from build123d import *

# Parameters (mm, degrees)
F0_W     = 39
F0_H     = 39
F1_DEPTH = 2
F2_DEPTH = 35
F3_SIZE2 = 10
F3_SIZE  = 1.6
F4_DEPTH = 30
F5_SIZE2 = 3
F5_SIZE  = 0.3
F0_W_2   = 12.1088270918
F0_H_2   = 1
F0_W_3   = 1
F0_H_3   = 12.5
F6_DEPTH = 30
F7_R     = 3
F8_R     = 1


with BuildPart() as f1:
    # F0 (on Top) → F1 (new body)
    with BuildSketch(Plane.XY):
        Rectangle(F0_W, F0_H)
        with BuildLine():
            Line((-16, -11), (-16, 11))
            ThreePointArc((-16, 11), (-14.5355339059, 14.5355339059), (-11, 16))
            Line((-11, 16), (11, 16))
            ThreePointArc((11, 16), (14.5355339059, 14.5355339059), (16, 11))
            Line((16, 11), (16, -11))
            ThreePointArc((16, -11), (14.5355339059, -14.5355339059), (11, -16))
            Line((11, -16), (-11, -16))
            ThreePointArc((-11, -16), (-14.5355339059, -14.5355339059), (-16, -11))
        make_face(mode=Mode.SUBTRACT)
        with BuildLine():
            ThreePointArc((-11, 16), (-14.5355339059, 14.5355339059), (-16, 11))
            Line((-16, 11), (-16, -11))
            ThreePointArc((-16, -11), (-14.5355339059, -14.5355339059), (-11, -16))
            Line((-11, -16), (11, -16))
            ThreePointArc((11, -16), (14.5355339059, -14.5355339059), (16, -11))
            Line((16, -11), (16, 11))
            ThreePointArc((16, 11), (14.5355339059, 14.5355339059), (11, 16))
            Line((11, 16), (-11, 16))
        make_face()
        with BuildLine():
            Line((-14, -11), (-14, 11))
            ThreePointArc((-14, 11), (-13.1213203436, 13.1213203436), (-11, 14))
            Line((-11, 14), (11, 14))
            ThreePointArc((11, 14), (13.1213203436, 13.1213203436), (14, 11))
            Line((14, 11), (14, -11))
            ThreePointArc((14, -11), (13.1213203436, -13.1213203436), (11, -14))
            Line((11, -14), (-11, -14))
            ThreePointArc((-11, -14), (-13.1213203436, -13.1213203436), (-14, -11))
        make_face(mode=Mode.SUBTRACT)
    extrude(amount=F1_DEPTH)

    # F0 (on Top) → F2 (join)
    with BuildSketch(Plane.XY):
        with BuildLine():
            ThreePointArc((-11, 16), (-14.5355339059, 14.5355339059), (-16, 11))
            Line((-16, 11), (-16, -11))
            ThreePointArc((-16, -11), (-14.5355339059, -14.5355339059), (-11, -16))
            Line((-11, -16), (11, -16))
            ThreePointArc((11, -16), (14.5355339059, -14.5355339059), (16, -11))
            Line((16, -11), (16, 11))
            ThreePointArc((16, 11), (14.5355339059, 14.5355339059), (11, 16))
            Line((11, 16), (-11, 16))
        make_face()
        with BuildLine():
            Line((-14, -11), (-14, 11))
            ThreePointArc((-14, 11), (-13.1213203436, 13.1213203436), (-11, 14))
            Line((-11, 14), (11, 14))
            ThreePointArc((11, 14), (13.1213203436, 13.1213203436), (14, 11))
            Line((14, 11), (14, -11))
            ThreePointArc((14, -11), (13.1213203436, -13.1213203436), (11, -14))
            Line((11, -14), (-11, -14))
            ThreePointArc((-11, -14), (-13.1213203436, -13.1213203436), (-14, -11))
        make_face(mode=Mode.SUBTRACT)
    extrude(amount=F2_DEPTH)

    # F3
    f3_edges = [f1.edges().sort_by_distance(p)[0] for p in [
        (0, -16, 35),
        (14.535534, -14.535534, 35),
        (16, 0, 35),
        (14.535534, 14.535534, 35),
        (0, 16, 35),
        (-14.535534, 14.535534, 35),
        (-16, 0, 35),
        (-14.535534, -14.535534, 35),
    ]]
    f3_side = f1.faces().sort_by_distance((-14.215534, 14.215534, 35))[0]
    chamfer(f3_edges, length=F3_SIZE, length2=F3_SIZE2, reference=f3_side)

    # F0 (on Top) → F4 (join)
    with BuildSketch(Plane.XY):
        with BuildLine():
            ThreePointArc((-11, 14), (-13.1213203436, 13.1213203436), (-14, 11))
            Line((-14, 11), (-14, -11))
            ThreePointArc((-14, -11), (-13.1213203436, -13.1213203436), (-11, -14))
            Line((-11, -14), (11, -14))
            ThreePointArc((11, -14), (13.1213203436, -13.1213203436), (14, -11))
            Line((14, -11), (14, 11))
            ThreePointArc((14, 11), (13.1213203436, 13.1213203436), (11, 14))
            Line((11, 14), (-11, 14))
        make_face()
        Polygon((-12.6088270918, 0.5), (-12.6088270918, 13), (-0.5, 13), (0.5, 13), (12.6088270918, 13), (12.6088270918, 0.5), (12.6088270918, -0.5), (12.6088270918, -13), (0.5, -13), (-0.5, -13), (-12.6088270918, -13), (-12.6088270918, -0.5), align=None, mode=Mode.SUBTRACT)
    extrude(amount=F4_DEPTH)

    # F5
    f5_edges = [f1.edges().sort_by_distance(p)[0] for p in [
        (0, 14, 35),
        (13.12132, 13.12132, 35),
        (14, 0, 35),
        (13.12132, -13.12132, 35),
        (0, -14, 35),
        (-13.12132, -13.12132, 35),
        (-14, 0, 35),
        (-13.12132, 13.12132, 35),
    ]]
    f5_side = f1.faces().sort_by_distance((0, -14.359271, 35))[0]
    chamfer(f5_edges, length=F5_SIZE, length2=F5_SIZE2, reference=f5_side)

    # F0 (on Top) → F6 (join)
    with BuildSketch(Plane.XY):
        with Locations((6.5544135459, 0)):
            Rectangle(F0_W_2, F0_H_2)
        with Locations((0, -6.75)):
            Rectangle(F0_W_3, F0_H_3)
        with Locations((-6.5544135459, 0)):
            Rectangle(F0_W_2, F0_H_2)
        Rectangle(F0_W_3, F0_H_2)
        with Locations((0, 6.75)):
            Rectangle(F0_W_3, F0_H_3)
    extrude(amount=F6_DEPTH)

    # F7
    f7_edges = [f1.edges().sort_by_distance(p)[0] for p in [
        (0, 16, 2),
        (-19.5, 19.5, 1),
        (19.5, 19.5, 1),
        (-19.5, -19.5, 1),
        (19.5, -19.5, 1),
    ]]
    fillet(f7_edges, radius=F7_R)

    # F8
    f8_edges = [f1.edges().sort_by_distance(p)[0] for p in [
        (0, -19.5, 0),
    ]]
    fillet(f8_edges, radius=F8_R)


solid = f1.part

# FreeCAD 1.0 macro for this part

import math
import FreeCAD as App
import Part
import Sketcher
from FreeCAD import Vector


def edges_at(feature, points):
    """Names of the edges that pass closest to the given points."""
    edges = feature.Shape.Edges
    near = lambda p: min(range(len(edges)), key=lambda i: edges[i].distToShape(Part.Vertex(*p))[0])
    return sorted({f"Edge{near(p) + 1}" for p in points})

doc = App.newDocument("Part")
params = doc.addObject("Spreadsheet::Sheet", "Params")
for row, (alias, value) in enumerate([
    ("sketch1_radius", "3 mm"),
    ("sketch1_width", "39 mm"),
    ("sketch1_width2", "22 mm"),
    ("pad1_length", "2 mm"),
    ("sketch2_radius", "5 mm"),
    ("sketch2_radius2", "3 mm"),
    ("sketch2_width", "22 mm"),
    ("pad2_length", "35 mm"),
    ("chamfer_size", "1.6 mm"),
    ("chamfer_size2", "10 mm"),
    ("sketch3_radius", "3 mm"),
    ("sketch3_width", "22 mm"),
    ("sketch3_height", "26 mm"),
    ("pad3_length", "30 mm"),
    ("chamfer2_size", "0.3 mm"),
    ("chamfer2_size2", "3 mm"),
    ("sketch4_width", "1 mm"),
    ("sketch4_height", "12.5 mm"),
    ("pad4_length", "30 mm"),
    ("fillet_radius", "3 mm"),
    ("fillet2_radius", "1 mm"),
], start=1):
    params.set(f"A{row}", alias)
    params.set(f"B{row}", "=" + value)
    params.setAlias(f"B{row}", alias)

body = doc.addObject("PartDesign::Body", "Body")

sketch1 = doc.addObject("Sketcher::SketchObject", "Sketch")
body.addObject(sketch1)
sketch1.AttachmentSupport = (doc.XY_Plane, [""])
sketch1.MapMode = "FlatFace"
sketch1.addGeometry([
    Part.LineSegment(Vector(-19.5, 19.5, 0), Vector(-19.5, -19.5, 0)),
    Part.LineSegment(Vector(-19.5, -19.5, 0), Vector(19.5, -19.5, 0)),
    Part.LineSegment(Vector(19.5, -19.5, 0), Vector(19.5, 19.5, 0)),
    Part.LineSegment(Vector(19.5, 19.5, 0), Vector(-19.5, 19.5, 0)),
    Part.ArcOfCircle(Part.Circle(Vector(-11, -11, 0), Vector(0, 0, 1), 3), math.radians(180), math.radians(270)),
    Part.LineSegment(Vector(-14, -11, 0), Vector(-14, 11, 0)),
    Part.ArcOfCircle(Part.Circle(Vector(-11, 11, 0), Vector(0, 0, 1), 3), math.radians(90), math.radians(180)),
    Part.LineSegment(Vector(-11, 14, 0), Vector(11, 14, 0)),
    Part.ArcOfCircle(Part.Circle(Vector(11, 11, 0), Vector(0, 0, 1), 3), math.radians(0), math.radians(90)),
    Part.LineSegment(Vector(14, 11, 0), Vector(14, -11, 0)),
    Part.ArcOfCircle(Part.Circle(Vector(11, -11, 0), Vector(0, 0, 1), 3), math.radians(-90), math.radians(0)),
    Part.LineSegment(Vector(11, -14, 0), Vector(-11, -14, 0)),
], False)
sketch1.addConstraint([
    Sketcher.Constraint("Coincident", 0, 2, 1, 1),
    Sketcher.Constraint("Coincident", 1, 2, 2, 1),
    Sketcher.Constraint("Coincident", 2, 2, 3, 1),
    Sketcher.Constraint("Coincident", 3, 2, 0, 1),
    Sketcher.Constraint("Tangent", 4, 1, 5, 1),
    Sketcher.Constraint("Tangent", 5, 2, 6, 2),
    Sketcher.Constraint("Tangent", 6, 1, 7, 1),
    Sketcher.Constraint("Tangent", 7, 2, 8, 2),
    Sketcher.Constraint("Tangent", 8, 1, 9, 1),
    Sketcher.Constraint("Tangent", 9, 2, 10, 2),
    Sketcher.Constraint("Tangent", 10, 1, 11, 1),
    Sketcher.Constraint("Tangent", 11, 2, 4, 2),
    Sketcher.Constraint("Vertical", 0),
    Sketcher.Constraint("Horizontal", 1),
    Sketcher.Constraint("Vertical", 2),
    Sketcher.Constraint("Horizontal", 3),
    Sketcher.Constraint("Vertical", 5),
    Sketcher.Constraint("Horizontal", 7),
    Sketcher.Constraint("Vertical", 9),
    Sketcher.Constraint("Horizontal", 11),
    Sketcher.Constraint("Equal", 4, 6),
    Sketcher.Constraint("Equal", 6, 8),
    Sketcher.Constraint("Equal", 8, 10),
    Sketcher.Constraint("Symmetric", 4, 3, 8, 3, -1, 1),
    Sketcher.Constraint("Symmetric", 0, 2, 2, 2, -1, 1),
    Sketcher.Constraint("Equal", 3, 0),
    Sketcher.Constraint("Equal", 11, 5),
    Sketcher.Constraint("Radius", 4, 3.0),
    Sketcher.Constraint("DistanceX", 1, 1, 1, 2, 39.0),
    Sketcher.Constraint("DistanceX", 7, 1, 7, 2, 22.0),
])
sketch1.setExpression("Constraints[27]", "Params.sketch1_radius")
sketch1.setExpression("Constraints[28]", "Params.sketch1_width")
sketch1.setExpression("Constraints[29]", "Params.sketch1_width2")
pad1 = doc.addObject("PartDesign::Pad", "Pad")
body.addObject(pad1)
pad1.Profile = sketch1
pad1.setExpression("Length", "Params.pad1_length")

sketch2 = doc.addObject("Sketcher::SketchObject", "Sketch001")
body.addObject(sketch2)
sketch2.AttachmentSupport = (doc.XY_Plane, [""])
sketch2.MapMode = "FlatFace"
sketch2.addGeometry([
    Part.ArcOfCircle(Part.Circle(Vector(-11, 11, 0), Vector(0, 0, 1), 5), math.radians(90), math.radians(180)),
    Part.LineSegment(Vector(-16, 11, 0), Vector(-16, -11, 0)),
    Part.ArcOfCircle(Part.Circle(Vector(-11, -11, 0), Vector(0, 0, 1), 5), math.radians(180), math.radians(270)),
    Part.LineSegment(Vector(-11, -16, 0), Vector(11, -16, 0)),
    Part.ArcOfCircle(Part.Circle(Vector(11, -11, 0), Vector(0, 0, 1), 5), math.radians(-90), math.radians(0)),
    Part.LineSegment(Vector(16, -11, 0), Vector(16, 11, 0)),
    Part.ArcOfCircle(Part.Circle(Vector(11, 11, 0), Vector(0, 0, 1), 5), math.radians(0), math.radians(90)),
    Part.LineSegment(Vector(11, 16, 0), Vector(-11, 16, 0)),
    Part.ArcOfCircle(Part.Circle(Vector(-11, -11, 0), Vector(0, 0, 1), 3), math.radians(180), math.radians(270)),
    Part.LineSegment(Vector(-14, -11, 0), Vector(-14, 11, 0)),
    Part.ArcOfCircle(Part.Circle(Vector(-11, 11, 0), Vector(0, 0, 1), 3), math.radians(90), math.radians(180)),
    Part.LineSegment(Vector(-11, 14, 0), Vector(11, 14, 0)),
    Part.ArcOfCircle(Part.Circle(Vector(11, 11, 0), Vector(0, 0, 1), 3), math.radians(0), math.radians(90)),
    Part.LineSegment(Vector(14, 11, 0), Vector(14, -11, 0)),
    Part.ArcOfCircle(Part.Circle(Vector(11, -11, 0), Vector(0, 0, 1), 3), math.radians(-90), math.radians(0)),
    Part.LineSegment(Vector(11, -14, 0), Vector(-11, -14, 0)),
], False)
sketch2.addConstraint([
    Sketcher.Constraint("Tangent", 0, 2, 1, 1),
    Sketcher.Constraint("Tangent", 1, 2, 2, 1),
    Sketcher.Constraint("Tangent", 2, 2, 3, 1),
    Sketcher.Constraint("Tangent", 3, 2, 4, 1),
    Sketcher.Constraint("Tangent", 4, 2, 5, 1),
    Sketcher.Constraint("Tangent", 5, 2, 6, 1),
    Sketcher.Constraint("Tangent", 6, 2, 7, 1),
    Sketcher.Constraint("Tangent", 7, 2, 0, 1),
    Sketcher.Constraint("Tangent", 8, 1, 9, 1),
    Sketcher.Constraint("Tangent", 9, 2, 10, 2),
    Sketcher.Constraint("Tangent", 10, 1, 11, 1),
    Sketcher.Constraint("Tangent", 11, 2, 12, 2),
    Sketcher.Constraint("Tangent", 12, 1, 13, 1),
    Sketcher.Constraint("Tangent", 13, 2, 14, 2),
    Sketcher.Constraint("Tangent", 14, 1, 15, 1),
    Sketcher.Constraint("Tangent", 15, 2, 8, 2),
    Sketcher.Constraint("Vertical", 1),
    Sketcher.Constraint("Horizontal", 3),
    Sketcher.Constraint("Vertical", 5),
    Sketcher.Constraint("Horizontal", 7),
    Sketcher.Constraint("Vertical", 9),
    Sketcher.Constraint("Horizontal", 11),
    Sketcher.Constraint("Vertical", 13),
    Sketcher.Constraint("Horizontal", 15),
    Sketcher.Constraint("Coincident", 8, 3, 2, 3),
    Sketcher.Constraint("Coincident", 10, 3, 0, 3),
    Sketcher.Constraint("Coincident", 12, 3, 6, 3),
    Sketcher.Constraint("Equal", 0, 2),
    Sketcher.Constraint("Equal", 2, 4),
    Sketcher.Constraint("Equal", 4, 6),
    Sketcher.Constraint("Equal", 12, 14),
    Sketcher.Constraint("Symmetric", 0, 3, 4, 3, -1, 1),
    Sketcher.Constraint("Equal", 15, 1),
    Sketcher.Constraint("Radius", 0, 5.0),
    Sketcher.Constraint("Radius", 8, 3.0),
    Sketcher.Constraint("DistanceX", 3, 1, 3, 2, 22.0),
])
sketch2.setExpression("Constraints[33]", "Params.sketch2_radius")
sketch2.setExpression("Constraints[34]", "Params.sketch2_radius2")
sketch2.setExpression("Constraints[35]", "Params.sketch2_width")
pad2 = doc.addObject("PartDesign::Pad", "Pad001")
body.addObject(pad2)
pad2.Profile = sketch2
pad2.setExpression("Length", "Params.pad2_length")
doc.recompute()

chamfer = doc.addObject("PartDesign::Chamfer", "Chamfer")
body.addObject(chamfer)
chamfer.Base = (pad2, edges_at(pad2, [
    (0, -16, 35),
    (14.536, -14.536, 35),
    (16, 0, 35),
    (14.536, 14.536, 35),
    (0, 16, 35),
    (-14.536, 14.536, 35),
    (-16, 0, 35),
    (-14.536, -14.536, 35),
]))
chamfer.ChamferType = "Two distances"
chamfer.setExpression("Size", "Params.chamfer_size")
chamfer.setExpression("Size2", "Params.chamfer_size2")
chamfer.FlipDirection = True

sketch3 = doc.addObject("Sketcher::SketchObject", "Sketch002")
body.addObject(sketch3)
sketch3.AttachmentSupport = (doc.XY_Plane, [""])
sketch3.MapMode = "FlatFace"
sketch3.addGeometry([
    Part.ArcOfCircle(Part.Circle(Vector(-11, 11, 0), Vector(0, 0, 1), 3), math.radians(90), math.radians(180)),
    Part.LineSegment(Vector(-14, 11, 0), Vector(-14, -11, 0)),
    Part.ArcOfCircle(Part.Circle(Vector(-11, -11, 0), Vector(0, 0, 1), 3), math.radians(180), math.radians(270)),
    Part.LineSegment(Vector(-11, -14, 0), Vector(11, -14, 0)),
    Part.ArcOfCircle(Part.Circle(Vector(11, -11, 0), Vector(0, 0, 1), 3), math.radians(-90), math.radians(0)),
    Part.LineSegment(Vector(14, -11, 0), Vector(14, 11, 0)),
    Part.ArcOfCircle(Part.Circle(Vector(11, 11, 0), Vector(0, 0, 1), 3), math.radians(0), math.radians(90)),
    Part.LineSegment(Vector(11, 14, 0), Vector(-11, 14, 0)),
    Part.LineSegment(Vector(-12.6, -13, 0), Vector(-12.6, 13, 0)),
    Part.LineSegment(Vector(-12.6, 13, 0), Vector(12.6, 13, 0)),
    Part.LineSegment(Vector(12.6, 13, 0), Vector(12.6, -13, 0)),
    Part.LineSegment(Vector(12.6, -13, 0), Vector(-12.6, -13, 0)),
], False)
sketch3.addConstraint([
    Sketcher.Constraint("Tangent", 0, 2, 1, 1),
    Sketcher.Constraint("Tangent", 1, 2, 2, 1),
    Sketcher.Constraint("Tangent", 2, 2, 3, 1),
    Sketcher.Constraint("Tangent", 3, 2, 4, 1),
    Sketcher.Constraint("Tangent", 4, 2, 5, 1),
    Sketcher.Constraint("Tangent", 5, 2, 6, 1),
    Sketcher.Constraint("Tangent", 6, 2, 7, 1),
    Sketcher.Constraint("Tangent", 7, 2, 0, 1),
    Sketcher.Constraint("Coincident", 8, 2, 9, 1),
    Sketcher.Constraint("Coincident", 9, 2, 10, 1),
    Sketcher.Constraint("Coincident", 10, 2, 11, 1),
    Sketcher.Constraint("Coincident", 11, 2, 8, 1),
    Sketcher.Constraint("Vertical", 1),
    Sketcher.Constraint("Horizontal", 3),
    Sketcher.Constraint("Vertical", 5),
    Sketcher.Constraint("Horizontal", 7),
    Sketcher.Constraint("Vertical", 8),
    Sketcher.Constraint("Horizontal", 9),
    Sketcher.Constraint("Vertical", 10),
    Sketcher.Constraint("Horizontal", 11),
    Sketcher.Constraint("Equal", 0, 2),
    Sketcher.Constraint("Equal", 2, 4),
    Sketcher.Constraint("Equal", 4, 6),
    Sketcher.Constraint("Symmetric", 0, 3, 4, 3, -1, 1),
    Sketcher.Constraint("Symmetric", 8, 2, 10, 2, -1, 1),
    Sketcher.Constraint("Equal", 7, 1),
    Sketcher.Constraint("Radius", 0, 3.0),
    Sketcher.Constraint("DistanceX", 3, 1, 3, 2, 22.0),
    Sketcher.Constraint("DistanceY", 8, 1, 8, 2, 26.0),
    Sketcher.Constraint("DistanceX", 9, 1, 9, 2, 25.217654),
])
sketch3.setExpression("Constraints[26]", "Params.sketch3_radius")
sketch3.setExpression("Constraints[27]", "Params.sketch3_width")
sketch3.setExpression("Constraints[28]", "Params.sketch3_height")
pad3 = doc.addObject("PartDesign::Pad", "Pad002")
body.addObject(pad3)
pad3.Profile = sketch3
pad3.setExpression("Length", "Params.pad3_length")
doc.recompute()

chamfer2 = doc.addObject("PartDesign::Chamfer", "Chamfer001")
body.addObject(chamfer2)
chamfer2.Base = (pad3, edges_at(pad3, [
    (0, 14, 35),
    (13.121, 13.121, 35),
    (14, 0, 35),
    (13.121, -13.121, 35),
    (0, -14, 35),
    (-13.121, -13.121, 35),
    (-14, 0, 35),
    (-13.121, 13.121, 35),
]))
chamfer2.ChamferType = "Two distances"
chamfer2.setExpression("Size", "Params.chamfer2_size")
chamfer2.setExpression("Size2", "Params.chamfer2_size2")

sketch4 = doc.addObject("Sketcher::SketchObject", "Sketch003")
body.addObject(sketch4)
sketch4.AttachmentSupport = (doc.XY_Plane, [""])
sketch4.MapMode = "FlatFace"
sketch4.addGeometry([
    Part.LineSegment(Vector(0.5, -0.5, 0), Vector(12.6, -0.5, 0)),
    Part.LineSegment(Vector(12.6, -0.5, 0), Vector(12.6, 0.5, 0)),
    Part.LineSegment(Vector(12.6, 0.5, 0), Vector(0.5, 0.5, 0)),
    Part.LineSegment(Vector(0.5, 0.5, 0), Vector(0.5, 13, 0)),
    Part.LineSegment(Vector(0.5, 13, 0), Vector(-0.5, 13, 0)),
    Part.LineSegment(Vector(-0.5, 13, 0), Vector(-0.5, 0.5, 0)),
    Part.LineSegment(Vector(-0.5, 0.5, 0), Vector(-12.6, 0.5, 0)),
    Part.LineSegment(Vector(-12.6, 0.5, 0), Vector(-12.6, -0.5, 0)),
    Part.LineSegment(Vector(-12.6, -0.5, 0), Vector(-0.5, -0.5, 0)),
    Part.LineSegment(Vector(-0.5, -0.5, 0), Vector(-0.5, -13, 0)),
    Part.LineSegment(Vector(-0.5, -13, 0), Vector(0.5, -13, 0)),
    Part.LineSegment(Vector(0.5, -13, 0), Vector(0.5, -0.5, 0)),
], False)
sketch4.addConstraint([
    Sketcher.Constraint("Coincident", 0, 2, 1, 1),
    Sketcher.Constraint("Coincident", 1, 2, 2, 1),
    Sketcher.Constraint("Coincident", 2, 2, 3, 1),
    Sketcher.Constraint("Coincident", 3, 2, 4, 1),
    Sketcher.Constraint("Coincident", 4, 2, 5, 1),
    Sketcher.Constraint("Coincident", 5, 2, 6, 1),
    Sketcher.Constraint("Coincident", 6, 2, 7, 1),
    Sketcher.Constraint("Coincident", 7, 2, 8, 1),
    Sketcher.Constraint("Coincident", 8, 2, 9, 1),
    Sketcher.Constraint("Coincident", 9, 2, 10, 1),
    Sketcher.Constraint("Coincident", 10, 2, 11, 1),
    Sketcher.Constraint("Coincident", 11, 2, 0, 1),
    Sketcher.Constraint("Horizontal", 0),
    Sketcher.Constraint("Vertical", 1),
    Sketcher.Constraint("Horizontal", 2),
    Sketcher.Constraint("Vertical", 3),
    Sketcher.Constraint("Horizontal", 4),
    Sketcher.Constraint("Vertical", 5),
    Sketcher.Constraint("Horizontal", 6),
    Sketcher.Constraint("Vertical", 7),
    Sketcher.Constraint("Horizontal", 8),
    Sketcher.Constraint("Vertical", 9),
    Sketcher.Constraint("Horizontal", 10),
    Sketcher.Constraint("Vertical", 11),
    Sketcher.Constraint("Symmetric", 0, 2, 6, 2, -1, 1),
    Sketcher.Constraint("Symmetric", 2, 2, 8, 2, -1, 1),
    Sketcher.Constraint("Symmetric", 4, 2, 10, 2, -1, 1),
    Sketcher.Constraint("Symmetric", 2, 2, 5, 2, -2),
    Sketcher.Constraint("Equal", 10, 1),
    Sketcher.Constraint("DistanceX", 4, 2, 4, 1, 1.0),
    Sketcher.Constraint("DistanceY", 3, 1, 3, 2, 12.5),
    Sketcher.Constraint("DistanceX", 0, 1, 0, 2, 12.108827),
])
sketch4.setExpression("Constraints[29]", "Params.sketch4_width")
sketch4.setExpression("Constraints[30]", "Params.sketch4_height")
pad4 = doc.addObject("PartDesign::Pad", "Pad003")
body.addObject(pad4)
pad4.Profile = sketch4
pad4.setExpression("Length", "Params.pad4_length")
doc.recompute()

fillet = doc.addObject("PartDesign::Fillet", "Fillet")
body.addObject(fillet)
fillet.Base = (pad4, edges_at(pad4, [
    (0, 16, 2),
    (-19.5, 19.5, 1),
    (19.5, 19.5, 1),
    (-19.5, -19.5, 1),
    (19.5, -19.5, 1),
]))
fillet.setExpression("Radius", "Params.fillet_radius")
doc.recompute()

fillet2 = doc.addObject("PartDesign::Fillet", "Fillet001")
body.addObject(fillet2)
fillet2.Base = (fillet, edges_at(fillet, [(0, -19.5, 0)]))
fillet2.setExpression("Radius", "Params.fillet2_radius")

doc.recompute()
